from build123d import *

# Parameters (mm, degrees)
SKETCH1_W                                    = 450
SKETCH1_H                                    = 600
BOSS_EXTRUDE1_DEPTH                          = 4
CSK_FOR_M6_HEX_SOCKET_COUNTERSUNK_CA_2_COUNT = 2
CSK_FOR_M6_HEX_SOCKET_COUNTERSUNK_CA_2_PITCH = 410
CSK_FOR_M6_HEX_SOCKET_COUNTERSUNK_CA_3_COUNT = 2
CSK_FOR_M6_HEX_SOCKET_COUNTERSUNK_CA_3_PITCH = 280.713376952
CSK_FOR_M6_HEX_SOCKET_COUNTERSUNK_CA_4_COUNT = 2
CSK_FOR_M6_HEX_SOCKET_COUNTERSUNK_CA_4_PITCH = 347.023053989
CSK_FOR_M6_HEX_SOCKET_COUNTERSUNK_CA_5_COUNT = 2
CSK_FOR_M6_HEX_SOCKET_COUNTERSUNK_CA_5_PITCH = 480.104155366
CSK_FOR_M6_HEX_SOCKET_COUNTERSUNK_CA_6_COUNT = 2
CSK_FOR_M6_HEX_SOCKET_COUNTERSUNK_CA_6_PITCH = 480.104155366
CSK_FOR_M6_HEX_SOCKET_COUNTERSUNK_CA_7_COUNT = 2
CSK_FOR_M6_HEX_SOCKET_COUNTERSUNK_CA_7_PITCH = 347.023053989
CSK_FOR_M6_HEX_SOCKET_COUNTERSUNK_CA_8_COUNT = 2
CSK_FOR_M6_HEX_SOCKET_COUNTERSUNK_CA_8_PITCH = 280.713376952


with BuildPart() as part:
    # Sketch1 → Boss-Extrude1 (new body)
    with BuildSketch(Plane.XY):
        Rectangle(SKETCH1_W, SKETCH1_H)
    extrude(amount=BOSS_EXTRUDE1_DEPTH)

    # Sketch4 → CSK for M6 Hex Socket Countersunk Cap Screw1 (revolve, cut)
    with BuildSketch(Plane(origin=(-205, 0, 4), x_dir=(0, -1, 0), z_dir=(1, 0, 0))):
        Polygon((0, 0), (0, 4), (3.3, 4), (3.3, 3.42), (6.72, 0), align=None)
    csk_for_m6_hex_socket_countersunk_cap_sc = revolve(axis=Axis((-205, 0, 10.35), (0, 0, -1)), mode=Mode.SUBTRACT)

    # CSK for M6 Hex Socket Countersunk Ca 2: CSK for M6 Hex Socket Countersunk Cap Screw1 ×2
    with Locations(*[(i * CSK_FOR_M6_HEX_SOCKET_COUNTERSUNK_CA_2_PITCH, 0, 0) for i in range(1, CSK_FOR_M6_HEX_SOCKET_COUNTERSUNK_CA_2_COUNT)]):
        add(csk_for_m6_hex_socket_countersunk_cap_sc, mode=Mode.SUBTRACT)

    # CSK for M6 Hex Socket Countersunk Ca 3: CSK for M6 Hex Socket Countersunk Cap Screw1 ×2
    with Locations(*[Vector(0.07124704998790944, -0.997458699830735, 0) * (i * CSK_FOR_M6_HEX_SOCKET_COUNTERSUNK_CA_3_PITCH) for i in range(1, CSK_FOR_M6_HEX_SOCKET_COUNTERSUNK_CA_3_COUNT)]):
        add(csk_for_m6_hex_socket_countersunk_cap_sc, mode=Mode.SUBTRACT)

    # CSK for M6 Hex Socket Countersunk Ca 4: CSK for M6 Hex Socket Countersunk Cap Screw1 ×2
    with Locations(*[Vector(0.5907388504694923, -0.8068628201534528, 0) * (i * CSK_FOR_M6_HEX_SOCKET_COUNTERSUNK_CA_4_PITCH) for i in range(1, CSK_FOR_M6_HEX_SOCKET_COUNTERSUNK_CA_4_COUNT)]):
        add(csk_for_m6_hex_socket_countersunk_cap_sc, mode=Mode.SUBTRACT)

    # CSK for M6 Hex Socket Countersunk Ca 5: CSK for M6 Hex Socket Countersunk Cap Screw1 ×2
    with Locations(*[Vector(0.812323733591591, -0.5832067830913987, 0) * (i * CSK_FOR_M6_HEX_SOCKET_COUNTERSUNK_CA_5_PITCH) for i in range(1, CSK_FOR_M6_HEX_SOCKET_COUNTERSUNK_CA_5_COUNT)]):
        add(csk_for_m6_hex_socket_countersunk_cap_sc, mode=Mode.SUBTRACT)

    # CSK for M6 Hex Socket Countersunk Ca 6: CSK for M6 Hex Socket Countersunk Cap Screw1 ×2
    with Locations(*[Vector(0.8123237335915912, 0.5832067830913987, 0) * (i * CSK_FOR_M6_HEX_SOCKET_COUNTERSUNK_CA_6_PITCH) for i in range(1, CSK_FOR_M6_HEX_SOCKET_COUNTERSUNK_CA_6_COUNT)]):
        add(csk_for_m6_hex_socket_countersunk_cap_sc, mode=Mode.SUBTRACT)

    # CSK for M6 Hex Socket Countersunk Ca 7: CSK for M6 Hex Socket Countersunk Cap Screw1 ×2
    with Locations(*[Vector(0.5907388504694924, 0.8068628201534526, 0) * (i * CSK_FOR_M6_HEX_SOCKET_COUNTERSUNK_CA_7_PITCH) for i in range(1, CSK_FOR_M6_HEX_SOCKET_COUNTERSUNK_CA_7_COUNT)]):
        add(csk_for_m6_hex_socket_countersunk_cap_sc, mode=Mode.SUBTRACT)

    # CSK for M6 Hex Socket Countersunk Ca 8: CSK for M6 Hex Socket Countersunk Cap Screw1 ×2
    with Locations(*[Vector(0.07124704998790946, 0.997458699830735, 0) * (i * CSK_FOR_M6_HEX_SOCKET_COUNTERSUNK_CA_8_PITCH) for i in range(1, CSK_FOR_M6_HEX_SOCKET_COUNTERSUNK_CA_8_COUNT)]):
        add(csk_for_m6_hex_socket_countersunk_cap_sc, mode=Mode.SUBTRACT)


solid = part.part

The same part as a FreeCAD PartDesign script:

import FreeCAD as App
import Part
import Sketcher
Q = App.Units.Quantity

doc = App.newDocument("Part")
body = doc.addObject("PartDesign::Body", "Body")

# Sketch on XY plane
sketch1 = body.newObject("Sketcher::SketchObject", "Sketch")
sketch1.AttachmentSupport = (doc.getObject("XY_Plane"), [""])
sketch1.MapMode = "FlatFace"
sketch1.addGeometry([
    Part.LineSegment(App.Vector(-225, 300, 0), App.Vector(-225, -300, 0)),
    Part.LineSegment(App.Vector(-225, -300, 0), App.Vector(225, -300, 0)),
    Part.LineSegment(App.Vector(225, -300, 0), App.Vector(225, 300, 0)),
    Part.LineSegment(App.Vector(225, 300, 0), App.Vector(-225, 300, 0)),
], False)
sketch1.addConstraint([
    Sketcher.Constraint("Coincident", 0, 2, 1, 1),
    Sketcher.Constraint("Coincident", 1, 2, 2, 1),
    Sketcher.Constraint("Coincident", 2, 2, 3, 1),
    Sketcher.Constraint("Coincident", 3, 2, 0, 1),
    Sketcher.Constraint("Vertical", 0),
    Sketcher.Constraint("Horizontal", 1),
    Sketcher.Constraint("Vertical", 2),
    Sketcher.Constraint("Horizontal", 3),
    Sketcher.Constraint("Symmetric", 0, 2, 2, 2, -1, 1),
    Sketcher.Constraint("DistanceX", 1, 1, 1, 2, 450.0),
    Sketcher.Constraint("DistanceY", 0, 2, 0, 1, 600.0),
])
pad1 = body.newObject("PartDesign::Pad", "Pad")
pad1.Profile = sketch1
pad1.Length = 4

# Sketch on YZ plane
sketch2 = body.newObject("Sketcher::SketchObject", "Sketch001")
sketch2.AttachmentSupport = (doc.getObject("YZ_Plane"), [""])
sketch2.MapMode = "FlatFace"
sketch2.AttachmentOffset = App.Placement(App.Vector(0, 0, -205), App.Rotation())
sketch2.addGeometry([
    Part.LineSegment(App.Vector(0, 0, 0), App.Vector(0, 4, 0)),  # 0
    Part.LineSegment(App.Vector(0, 4, 0), App.Vector(-6.7, 4, 0)),  # 1
    Part.LineSegment(App.Vector(-6.7, 4, 0), App.Vector(-3.3, 0.6, 0)),  # 2
    Part.LineSegment(App.Vector(-3.3, 0.6, 0), App.Vector(-3.3, 0, 0)),  # 3
    Part.LineSegment(App.Vector(-3.3, 0, 0), App.Vector(0, 0, 0)),  # 4
], False)
sketch2.addConstraint([
    Sketcher.Constraint("Coincident", 0, 2, 1, 1),
    Sketcher.Constraint("Coincident", 1, 2, 2, 1),
    Sketcher.Constraint("Coincident", 2, 2, 3, 1),
    Sketcher.Constraint("Coincident", 3, 2, 4, 1),
    Sketcher.Constraint("Coincident", 4, 2, 0, 1),
    Sketcher.Constraint("Vertical", 0),
    Sketcher.Constraint("Horizontal", 1),
    Sketcher.Constraint("Vertical", 3),
    Sketcher.Constraint("Horizontal", 4),
    Sketcher.Constraint("Coincident", 4, 2, -1, 1),
    Sketcher.Constraint("DistanceY", 0, 1, 0, 2, 4.0),
    Sketcher.Constraint("Angle", 2, Q("-45 deg")),
    Sketcher.Constraint("DistanceX", 4, 1, 4, 2, 3.3),
    Sketcher.Constraint("DistanceX", 1, 2, 1, 1, 6.72),
])
groove = body.newObject("PartDesign::Groove", "Groove")
groove.Profile = sketch2
groove.ReferenceAxis = (sketch2, ["V_Axis"])
groove.Angle = 360
doc.recompute()

linearpattern = body.newObject("PartDesign::LinearPattern", "LinearPattern")
linearpattern.Originals = [groove]
linearpattern.Direction = (doc.getObject("X_Axis"), [""])
linearpattern.Mode = "offset"
linearpattern.Offset = 410
linearpattern.Occurrences = 2
body.Tip = linearpattern
doc.recompute()

datumline = body.newObject("PartDesign::Line", "DatumLine")
datumline.Placement = App.Placement(App.Vector(0, 0, 0), App.Rotation(App.Vector(0, 0, 1), App.Vector(0.07124705, -0.9974587, 0)))
linearpattern2 = body.newObject("PartDesign::LinearPattern", "LinearPattern001")
linearpattern2.Originals = [groove]
linearpattern2.Direction = (datumline, [""])
linearpattern2.Mode = "offset"
linearpattern2.Offset = 280.713377
linearpattern2.Occurrences = 2
body.Tip = linearpattern2
doc.recompute()

datumline2 = body.newObject("PartDesign::Line", "DatumLine001")
datumline2.Placement = App.Placement(App.Vector(0, 0, 0), App.Rotation(App.Vector(0, 0, 1), App.Vector(0.59073885, -0.80686282, 0)))
linearpattern3 = body.newObject("PartDesign::LinearPattern", "LinearPattern002")
linearpattern3.Originals = [groove]
linearpattern3.Direction = (datumline2, [""])
linearpattern3.Mode = "offset"
linearpattern3.Offset = 347.023054
linearpattern3.Occurrences = 2
body.Tip = linearpattern3
doc.recompute()

datumline3 = body.newObject("PartDesign::Line", "DatumLine002")
datumline3.Placement = App.Placement(App.Vector(0, 0, 0), App.Rotation(App.Vector(0, 0, 1), App.Vector(0.812323734, -0.583206783, 0)))
linearpattern4 = body.newObject("PartDesign::LinearPattern", "LinearPattern003")
linearpattern4.Originals = [groove]
linearpattern4.Direction = (datumline3, [""])
linearpattern4.Mode = "offset"
linearpattern4.Offset = 480.104155
linearpattern4.Occurrences = 2
body.Tip = linearpattern4
doc.recompute()

datumline4 = body.newObject("PartDesign::Line", "DatumLine003")
datumline4.Placement = App.Placement(App.Vector(0, 0, 0), App.Rotation(App.Vector(0, 0, 1), App.Vector(0.812323734, 0.583206783, 0)))
linearpattern5 = body.newObject("PartDesign::LinearPattern", "LinearPattern004")
linearpattern5.Originals = [groove]
linearpattern5.Direction = (datumline4, [""])
linearpattern5.Mode = "offset"
linearpattern5.Offset = 480.104155
linearpattern5.Occurrences = 2
body.Tip = linearpattern5
doc.recompute()

datumline5 = body.newObject("PartDesign::Line", "DatumLine004")
datumline5.Placement = App.Placement(App.Vector(0, 0, 0), App.Rotation(App.Vector(0, 0, 1), App.Vector(0.59073885, 0.80686282, 0)))
linearpattern6 = body.newObject("PartDesign::LinearPattern", "LinearPattern005")
linearpattern6.Originals = [groove]
linearpattern6.Direction = (datumline5, [""])
linearpattern6.Mode = "offset"
linearpattern6.Offset = 347.023054
linearpattern6.Occurrences = 2
body.Tip = linearpattern6
doc.recompute()

datumline6 = body.newObject("PartDesign::Line", "DatumLine005")
datumline6.Placement = App.Placement(App.Vector(0, 0, 0), App.Rotation(App.Vector(0, 0, 1), App.Vector(0.07124705, 0.9974587, 0)))
linearpattern7 = body.newObject("PartDesign::LinearPattern", "LinearPattern006")
linearpattern7.Originals = [groove]
linearpattern7.Direction = (datumline6, [""])
linearpattern7.Mode = "offset"
linearpattern7.Offset = 280.713377
linearpattern7.Occurrences = 2
body.Tip = linearpattern7

doc.recompute()
